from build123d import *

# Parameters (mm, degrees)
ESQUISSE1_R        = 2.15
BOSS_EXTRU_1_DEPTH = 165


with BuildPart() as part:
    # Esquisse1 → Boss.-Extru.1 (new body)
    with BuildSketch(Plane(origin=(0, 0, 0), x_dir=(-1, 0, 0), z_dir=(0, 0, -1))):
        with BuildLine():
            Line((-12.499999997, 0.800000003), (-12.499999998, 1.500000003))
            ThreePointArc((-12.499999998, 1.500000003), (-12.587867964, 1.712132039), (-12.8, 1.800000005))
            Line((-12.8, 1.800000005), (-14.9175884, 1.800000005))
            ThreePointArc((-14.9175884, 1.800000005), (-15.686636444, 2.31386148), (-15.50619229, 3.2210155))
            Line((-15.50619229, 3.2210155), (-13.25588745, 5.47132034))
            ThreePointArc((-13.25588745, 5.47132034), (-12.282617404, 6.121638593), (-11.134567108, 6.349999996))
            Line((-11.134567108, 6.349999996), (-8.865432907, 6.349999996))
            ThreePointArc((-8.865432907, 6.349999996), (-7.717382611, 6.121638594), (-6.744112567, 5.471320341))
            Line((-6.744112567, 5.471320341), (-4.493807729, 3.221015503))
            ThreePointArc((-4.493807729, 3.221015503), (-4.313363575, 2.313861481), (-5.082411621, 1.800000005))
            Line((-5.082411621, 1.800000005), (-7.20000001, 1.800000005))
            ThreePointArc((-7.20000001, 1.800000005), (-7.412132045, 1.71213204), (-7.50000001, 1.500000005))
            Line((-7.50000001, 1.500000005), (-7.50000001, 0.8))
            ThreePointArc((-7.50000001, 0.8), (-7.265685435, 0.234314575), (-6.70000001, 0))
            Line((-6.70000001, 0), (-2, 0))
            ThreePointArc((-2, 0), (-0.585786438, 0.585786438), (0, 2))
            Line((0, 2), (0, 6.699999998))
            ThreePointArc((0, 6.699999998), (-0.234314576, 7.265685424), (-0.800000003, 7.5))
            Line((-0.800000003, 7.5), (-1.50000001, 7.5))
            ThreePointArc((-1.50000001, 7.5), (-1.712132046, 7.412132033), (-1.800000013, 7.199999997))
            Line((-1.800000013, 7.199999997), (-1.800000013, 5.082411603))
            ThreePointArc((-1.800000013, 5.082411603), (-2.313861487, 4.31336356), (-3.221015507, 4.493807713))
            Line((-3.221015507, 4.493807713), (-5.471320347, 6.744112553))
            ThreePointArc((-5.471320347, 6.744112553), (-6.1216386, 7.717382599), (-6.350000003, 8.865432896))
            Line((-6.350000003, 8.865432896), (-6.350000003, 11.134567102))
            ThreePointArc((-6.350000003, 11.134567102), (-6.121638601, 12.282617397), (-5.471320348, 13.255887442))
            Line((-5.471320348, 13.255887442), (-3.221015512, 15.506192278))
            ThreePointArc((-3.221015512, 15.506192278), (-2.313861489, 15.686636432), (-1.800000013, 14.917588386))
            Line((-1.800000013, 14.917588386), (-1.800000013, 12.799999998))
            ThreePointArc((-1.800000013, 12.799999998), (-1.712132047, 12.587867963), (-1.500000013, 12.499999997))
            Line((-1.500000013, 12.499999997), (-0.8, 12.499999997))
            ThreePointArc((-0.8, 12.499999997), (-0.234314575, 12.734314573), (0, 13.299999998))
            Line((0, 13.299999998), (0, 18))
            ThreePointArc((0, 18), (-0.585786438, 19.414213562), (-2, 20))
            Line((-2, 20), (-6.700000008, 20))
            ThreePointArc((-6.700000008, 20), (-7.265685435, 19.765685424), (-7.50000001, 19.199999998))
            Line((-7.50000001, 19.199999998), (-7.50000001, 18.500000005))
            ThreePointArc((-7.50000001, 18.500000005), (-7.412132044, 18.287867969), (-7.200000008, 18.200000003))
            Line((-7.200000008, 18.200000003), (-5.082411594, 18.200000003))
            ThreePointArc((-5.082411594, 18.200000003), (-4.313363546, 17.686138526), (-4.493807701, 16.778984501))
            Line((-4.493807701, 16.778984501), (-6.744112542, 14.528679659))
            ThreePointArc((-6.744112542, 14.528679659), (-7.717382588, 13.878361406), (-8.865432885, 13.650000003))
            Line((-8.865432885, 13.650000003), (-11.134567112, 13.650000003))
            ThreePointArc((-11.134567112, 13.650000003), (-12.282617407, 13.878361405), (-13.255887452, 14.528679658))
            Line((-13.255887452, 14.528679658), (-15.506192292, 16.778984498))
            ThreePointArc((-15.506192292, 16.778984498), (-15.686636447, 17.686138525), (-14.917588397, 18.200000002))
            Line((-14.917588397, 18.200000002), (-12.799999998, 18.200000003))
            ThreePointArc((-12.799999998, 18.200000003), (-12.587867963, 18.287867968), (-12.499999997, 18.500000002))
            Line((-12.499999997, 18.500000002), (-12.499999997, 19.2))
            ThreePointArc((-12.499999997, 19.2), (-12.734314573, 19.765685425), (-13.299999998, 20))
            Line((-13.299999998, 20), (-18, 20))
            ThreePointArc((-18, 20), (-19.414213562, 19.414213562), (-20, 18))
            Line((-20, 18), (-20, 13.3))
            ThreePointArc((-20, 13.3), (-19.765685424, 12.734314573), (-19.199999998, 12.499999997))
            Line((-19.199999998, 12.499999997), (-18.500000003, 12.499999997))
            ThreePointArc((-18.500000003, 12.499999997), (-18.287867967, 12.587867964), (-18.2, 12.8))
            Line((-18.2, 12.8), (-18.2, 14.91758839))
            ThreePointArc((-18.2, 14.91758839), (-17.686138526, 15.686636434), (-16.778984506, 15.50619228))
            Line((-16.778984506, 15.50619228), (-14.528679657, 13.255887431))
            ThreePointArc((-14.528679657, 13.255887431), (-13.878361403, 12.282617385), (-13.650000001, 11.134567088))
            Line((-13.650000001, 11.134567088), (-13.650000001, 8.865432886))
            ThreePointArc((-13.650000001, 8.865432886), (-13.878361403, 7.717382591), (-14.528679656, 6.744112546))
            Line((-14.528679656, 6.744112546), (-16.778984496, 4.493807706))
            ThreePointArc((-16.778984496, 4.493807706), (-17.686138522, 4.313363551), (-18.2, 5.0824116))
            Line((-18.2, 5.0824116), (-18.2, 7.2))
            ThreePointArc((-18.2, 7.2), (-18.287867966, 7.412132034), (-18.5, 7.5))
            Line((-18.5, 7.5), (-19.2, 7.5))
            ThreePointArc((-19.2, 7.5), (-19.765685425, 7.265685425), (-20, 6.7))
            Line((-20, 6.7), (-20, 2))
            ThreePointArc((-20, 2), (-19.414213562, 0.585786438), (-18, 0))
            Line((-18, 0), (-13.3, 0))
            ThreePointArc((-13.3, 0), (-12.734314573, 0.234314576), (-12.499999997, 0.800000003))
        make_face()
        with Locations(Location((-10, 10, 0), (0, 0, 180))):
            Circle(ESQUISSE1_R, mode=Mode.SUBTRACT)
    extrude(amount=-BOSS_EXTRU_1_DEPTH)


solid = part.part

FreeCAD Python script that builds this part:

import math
import FreeCAD as App
import Part
import Sketcher

doc = App.newDocument("Part")
body = doc.addObject("PartDesign::Body", "Body")

# Sketch on XY plane
sketch1 = body.newObject("Sketcher::SketchObject", "Sketch")
sketch1.AttachmentSupport = (doc.getObject("XY_Plane"), [""])
sketch1.MapMode = "FlatFace"
sketch1.addGeometry([
    Part.LineSegment(App.Vector(12.5, 0.8, 0), App.Vector(12.5, 1.5, 0)),  # 0
    Part.ArcOfCircle(Part.Circle(App.Vector(12.8, 1.5, 0), App.Vector(0, 0, 1), 0.3), math.radians(90), math.radians(180)),  # 1
    Part.LineSegment(App.Vector(12.8, 1.8, 0), App.Vector(14.92, 1.8, 0)),  # 2
    Part.ArcOfCircle(Part.Circle(App.Vector(14.92, 2.63, 0), App.Vector(0, 0, 1), 0.83), math.radians(-90), math.radians(45)),  # 3
    Part.LineSegment(App.Vector(15.51, 3.22, 0), App.Vector(13.26, 5.47, 0)),  # 4
    Part.ArcOfCircle(Part.Circle(App.Vector(11.13, 3.35, 0), App.Vector(0, 0, 1), 3), math.radians(45), math.radians(90)),  # 5
    Part.LineSegment(App.Vector(11.13, 6.35, 0), App.Vector(8.87, 6.35, 0)),  # 6
    Part.ArcOfCircle(Part.Circle(App.Vector(8.87, 3.35, 0), App.Vector(0, 0, 1), 3), math.radians(90), math.radians(135)),  # 7
    Part.LineSegment(App.Vector(6.74, 5.47, 0), App.Vector(4.49, 3.22, 0)),  # 8
    Part.ArcOfCircle(Part.Circle(App.Vector(5.08, 2.63, 0), App.Vector(0, 0, 1), 0.83), math.radians(135), math.radians(270)),  # 9
    Part.LineSegment(App.Vector(5.08, 1.8, 0), App.Vector(7.2, 1.8, 0)),  # 10
    Part.ArcOfCircle(Part.Circle(App.Vector(7.2, 1.5, 0), App.Vector(0, 0, 1), 0.3), math.radians(0), math.radians(90)),  # 11
    Part.LineSegment(App.Vector(7.5, 1.5, 0), App.Vector(7.5, 0.8, 0)),  # 12
    Part.ArcOfCircle(Part.Circle(App.Vector(6.7, 0.8, 0), App.Vector(0, 0, 1), 0.8), math.radians(-90), math.radians(0)),  # 13
    Part.LineSegment(App.Vector(6.7, 0, 0), App.Vector(2, 0, 0)),  # 14
    Part.ArcOfCircle(Part.Circle(App.Vector(2, 2, 0), App.Vector(0, 0, 1), 2), math.radians(-180), math.radians(-90)),  # 15
    Part.LineSegment(App.Vector(0, 2, 0), App.Vector(0, 6.7, 0)),  # 16
    Part.ArcOfCircle(Part.Circle(App.Vector(0.8, 6.7, 0), App.Vector(0, 0, 1), 0.8), math.radians(90), math.radians(180)),  # 17
    Part.LineSegment(App.Vector(0.8, 7.5, 0), App.Vector(1.5, 7.5, 0)),  # 18
    Part.ArcOfCircle(Part.Circle(App.Vector(1.5, 7.2, 0), App.Vector(0, 0, 1), 0.3), math.radians(0), math.radians(90)),  # 19
    Part.LineSegment(App.Vector(1.8, 7.2, 0), App.Vector(1.8, 5.08, 0)),  # 20
    Part.ArcOfCircle(Part.Circle(App.Vector(2.63, 5.08, 0), App.Vector(0, 0, 1), 0.83), math.radians(-180), math.radians(-45)),  # 21
    Part.LineSegment(App.Vector(3.22, 4.49, 0), App.Vector(5.47, 6.74, 0)),  # 22
    Part.ArcOfCircle(Part.Circle(App.Vector(3.35, 8.87, 0), App.Vector(0, 0, 1), 3), math.radians(-45), math.radians(0)),  # 23
    Part.LineSegment(App.Vector(6.35, 8.87, 0), App.Vector(6.35, 11.13, 0)),  # 24
    Part.ArcOfCircle(Part.Circle(App.Vector(3.35, 11.13, 0), App.Vector(0, 0, 1), 3), math.radians(0), math.radians(45)),  # 25
    Part.LineSegment(App.Vector(5.47, 13.26, 0), App.Vector(3.22, 15.51, 0)),  # 26
    Part.ArcOfCircle(Part.Circle(App.Vector(2.63, 14.92, 0), App.Vector(0, 0, 1), 0.83), math.radians(45), math.radians(180)),  # 27
    Part.LineSegment(App.Vector(1.8, 14.92, 0), App.Vector(1.8, 12.8, 0)),  # 28
    Part.ArcOfCircle(Part.Circle(App.Vector(1.5, 12.8, 0), App.Vector(0, 0, 1), 0.3), math.radians(-90), math.radians(0)),  # 29
    Part.LineSegment(App.Vector(1.5, 12.5, 0), App.Vector(0.8, 12.5, 0)),  # 30
    Part.ArcOfCircle(Part.Circle(App.Vector(0.8, 13.3, 0), App.Vector(0, 0, 1), 0.8), math.radians(-180), math.radians(-90)),  # 31
    Part.LineSegment(App.Vector(0, 13.3, 0), App.Vector(0, 18, 0)),  # 32
    Part.ArcOfCircle(Part.Circle(App.Vector(2, 18, 0), App.Vector(0, 0, 1), 2), math.radians(90), math.radians(180)),  # 33
    Part.LineSegment(App.Vector(2, 20, 0), App.Vector(6.7, 20, 0)),  # 34
    Part.ArcOfCircle(Part.Circle(App.Vector(6.7, 19.2, 0), App.Vector(0, 0, 1), 0.8), math.radians(0), math.radians(90)),  # 35
    Part.LineSegment(App.Vector(7.5, 19.2, 0), App.Vector(7.5, 18.5, 0)),  # 36
    Part.ArcOfCircle(Part.Circle(App.Vector(7.2, 18.5, 0), App.Vector(0, 0, 1), 0.3), math.radians(-90), math.radians(0)),  # 37
    Part.LineSegment(App.Vector(7.2, 18.2, 0), App.Vector(5.08, 18.2, 0)),  # 38
    Part.ArcOfCircle(Part.Circle(App.Vector(5.08, 17.37, 0), App.Vector(0, 0, 1), 0.83), math.radians(90), math.radians(225)),  # 39
    Part.LineSegment(App.Vector(4.49, 16.78, 0), App.Vector(6.74, 14.53, 0)),  # 40
    Part.ArcOfCircle(Part.Circle(App.Vector(8.87, 16.65, 0), App.Vector(0, 0, 1), 3), math.radians(-135), math.radians(-90)),  # 41
    Part.LineSegment(App.Vector(8.87, 13.65, 0), App.Vector(11.13, 13.65, 0)),  # 42
    Part.ArcOfCircle(Part.Circle(App.Vector(11.13, 16.65, 0), App.Vector(0, 0, 1), 3), math.radians(-90), math.radians(-45)),  # 43
    Part.LineSegment(App.Vector(13.26, 14.53, 0), App.Vector(15.51, 16.78, 0)),  # 44
    Part.ArcOfCircle(Part.Circle(App.Vector(14.92, 17.37, 0), App.Vector(0, 0, 1), 0.83), math.radians(-45), math.radians(90)),  # 45
    Part.LineSegment(App.Vector(14.92, 18.2, 0), App.Vector(12.8, 18.2, 0)),  # 46
    Part.ArcOfCircle(Part.Circle(App.Vector(12.8, 18.5, 0), App.Vector(0, 0, 1), 0.3), math.radians(-180), math.radians(-90)),  # 47
    Part.LineSegment(App.Vector(12.5, 18.5, 0), App.Vector(12.5, 19.2, 0)),  # 48
    Part.ArcOfCircle(Part.Circle(App.Vector(13.3, 19.2, 0), App.Vector(0, 0, 1), 0.8), math.radians(90), math.radians(180)),  # 49
    Part.LineSegment(App.Vector(13.3, 20, 0), App.Vector(18, 20, 0)),  # 50
    Part.ArcOfCircle(Part.Circle(App.Vector(18, 18, 0), App.Vector(0, 0, 1), 2), math.radians(0), math.radians(90)),  # 51
    Part.LineSegment(App.Vector(20, 18, 0), App.Vector(20, 13.3, 0)),  # 52
    Part.ArcOfCircle(Part.Circle(App.Vector(19.2, 13.3, 0), App.Vector(0, 0, 1), 0.8), math.radians(-90), math.radians(0)),  # 53
    Part.LineSegment(App.Vector(19.2, 12.5, 0), App.Vector(18.5, 12.5, 0)),  # 54
    Part.ArcOfCircle(Part.Circle(App.Vector(18.5, 12.8, 0), App.Vector(0, 0, 1), 0.3), math.radians(-180), math.radians(-90)),  # 55
    Part.LineSegment(App.Vector(18.2, 12.8, 0), App.Vector(18.2, 14.92, 0)),  # 56
    Part.ArcOfCircle(Part.Circle(App.Vector(17.37, 14.92, 0), App.Vector(0, 0, 1), 0.83), math.radians(0), math.radians(135)),  # 57
    Part.LineSegment(App.Vector(16.78, 15.51, 0), App.Vector(14.53, 13.26, 0)),  # 58
    Part.ArcOfCircle(Part.Circle(App.Vector(16.65, 11.13, 0), App.Vector(0, 0, 1), 3), math.radians(135), math.radians(180)),  # 59
    Part.LineSegment(App.Vector(13.65, 11.13, 0), App.Vector(13.65, 8.87, 0)),  # 60
    Part.ArcOfCircle(Part.Circle(App.Vector(16.65, 8.87, 0), App.Vector(0, 0, 1), 3), math.radians(180), math.radians(225)),  # 61
    Part.LineSegment(App.Vector(14.53, 6.74, 0), App.Vector(16.78, 4.49, 0)),  # 62
    Part.ArcOfCircle(Part.Circle(App.Vector(17.37, 5.08, 0), App.Vector(0, 0, 1), 0.83), math.radians(-135), math.radians(0)),  # 63
    Part.LineSegment(App.Vector(18.2, 5.08, 0), App.Vector(18.2, 7.2, 0)),  # 64
    Part.ArcOfCircle(Part.Circle(App.Vector(18.5, 7.2, 0), App.Vector(0, 0, 1), 0.3), math.radians(90), math.radians(180)),  # 65
    Part.LineSegment(App.Vector(18.5, 7.5, 0), App.Vector(19.2, 7.5, 0)),  # 66
    Part.ArcOfCircle(Part.Circle(App.Vector(19.2, 6.7, 0), App.Vector(0, 0, 1), 0.8), math.radians(0), math.radians(90)),  # 67
    Part.LineSegment(App.Vector(20, 6.7, 0), App.Vector(20, 2, 0)),  # 68
    Part.ArcOfCircle(Part.Circle(App.Vector(18, 2, 0), App.Vector(0, 0, 1), 2), math.radians(-90), math.radians(0)),  # 69
    Part.LineSegment(App.Vector(18, 0, 0), App.Vector(13.3, 0, 0)),  # 70
    Part.ArcOfCircle(Part.Circle(App.Vector(13.3, 0.8, 0), App.Vector(0, 0, 1), 0.8), math.radians(180), math.radians(270)),  # 71
    Part.Circle(App.Vector(10, 10, 0), App.Vector(0, 0, 1), 2.15),  # 72
], False)
sketch1.addConstraint([
    Sketcher.Constraint("Tangent", 0, 2, 1, 2),
    Sketcher.Constraint("Tangent", 1, 1, 2, 1),
    Sketcher.Constraint("Tangent", 2, 2, 3, 1),
    Sketcher.Constraint("Tangent", 3, 2, 4, 1),
    Sketcher.Constraint("Tangent", 4, 2, 5, 1),
    Sketcher.Constraint("Tangent", 5, 2, 6, 1),
    Sketcher.Constraint("Tangent", 6, 2, 7, 1),
    Sketcher.Constraint("Tangent", 7, 2, 8, 1),
    Sketcher.Constraint("Tangent", 8, 2, 9, 1),
    Sketcher.Constraint("Tangent", 9, 2, 10, 1),
    Sketcher.Constraint("Tangent", 10, 2, 11, 2),
    Sketcher.Constraint("Tangent", 11, 1, 12, 1),
    Sketcher.Constraint("Tangent", 12, 2, 13, 2),
    Sketcher.Constraint("Tangent", 13, 1, 14, 1),
    Sketcher.Constraint("Tangent", 14, 2, 15, 2),
    Sketcher.Constraint("Tangent", 15, 1, 16, 1),
    Sketcher.Constraint("Tangent", 16, 2, 17, 2),
    Sketcher.Constraint("Tangent", 17, 1, 18, 1),
    Sketcher.Constraint("Tangent", 18, 2, 19, 2),
    Sketcher.Constraint("Tangent", 19, 1, 20, 1),
    Sketcher.Constraint("Tangent", 20, 2, 21, 1),
    Sketcher.Constraint("Tangent", 21, 2, 22, 1),
    Sketcher.Constraint("Tangent", 22, 2, 23, 1),
    Sketcher.Constraint("Tangent", 23, 2, 24, 1),
    Sketcher.Constraint("Tangent", 24, 2, 25, 1),
    Sketcher.Constraint("Tangent", 25, 2, 26, 1),
    Sketcher.Constraint("Tangent", 26, 2, 27, 1),
    Sketcher.Constraint("Tangent", 27, 2, 28, 1),
    Sketcher.Constraint("Tangent", 28, 2, 29, 2),
    Sketcher.Constraint("Tangent", 29, 1, 30, 1),
    Sketcher.Constraint("Tangent", 30, 2, 31, 2),
    Sketcher.Constraint("Tangent", 31, 1, 32, 1),
    Sketcher.Constraint("Tangent", 32, 2, 33, 2),
    Sketcher.Constraint("Tangent", 33, 1, 34, 1),
    Sketcher.Constraint("Tangent", 34, 2, 35, 2),
    Sketcher.Constraint("Tangent", 35, 1, 36, 1),
    Sketcher.Constraint("Tangent", 36, 2, 37, 2),
    Sketcher.Constraint("Tangent", 37, 1, 38, 1),
    Sketcher.Constraint("Tangent", 38, 2, 39, 1),
    Sketcher.Constraint("Tangent", 39, 2, 40, 1),
    Sketcher.Constraint("Tangent", 40, 2, 41, 1),
    Sketcher.Constraint("Tangent", 41, 2, 42, 1),
    Sketcher.Constraint("Tangent", 42, 2, 43, 1),
    Sketcher.Constraint("Tangent", 43, 2, 44, 1),
    Sketcher.Constraint("Tangent", 44, 2, 45, 1),
    Sketcher.Constraint("Tangent", 45, 2, 46, 1),
    Sketcher.Constraint("Tangent", 46, 2, 47, 2),
    Sketcher.Constraint("Tangent", 47, 1, 48, 1),
    Sketcher.Constraint("Tangent", 48, 2, 49, 2),
    Sketcher.Constraint("Tangent", 49, 1, 50, 1),
    Sketcher.Constraint("Tangent", 50, 2, 51, 2),
    Sketcher.Constraint("Tangent", 51, 1, 52, 1),
    Sketcher.Constraint("Tangent", 52, 2, 53, 2),
    Sketcher.Constraint("Tangent", 53, 1, 54, 1),
    Sketcher.Constraint("Tangent", 54, 2, 55, 2),
    Sketcher.Constraint("Tangent", 55, 1, 56, 1),
    Sketcher.Constraint("Tangent", 56, 2, 57, 1),
    Sketcher.Constraint("Tangent", 57, 2, 58, 1),
    Sketcher.Constraint("Tangent", 58, 2, 59, 1),
    Sketcher.Constraint("Tangent", 59, 2, 60, 1),
    Sketcher.Constraint("Tangent", 60, 2, 61, 1),
    Sketcher.Constraint("Tangent", 61, 2, 62, 1),
    Sketcher.Constraint("Tangent", 62, 2, 63, 1),
    Sketcher.Constraint("Tangent", 63, 2, 64, 1),
    Sketcher.Constraint("Tangent", 64, 2, 65, 2),
    Sketcher.Constraint("Tangent", 65, 1, 66, 1),
    Sketcher.Constraint("Tangent", 66, 2, 67, 2),
    Sketcher.Constraint("Tangent", 67, 1, 68, 1),
    Sketcher.Constraint("Tangent", 68, 2, 69, 2),
    Sketcher.Constraint("Tangent", 69, 1, 70, 1),
    Sketcher.Constraint("Tangent", 70, 2, 71, 2),
    Sketcher.Constraint("Tangent", 71, 1, 0, 1),
    Sketcher.Constraint("Vertical", 0),
    Sketcher.Constraint("Horizontal", 2),
    Sketcher.Constraint("Horizontal", 6),
    Sketcher.Constraint("Horizontal", 10),
    Sketcher.Constraint("Vertical", 12),
    Sketcher.Constraint("Horizontal", 14),
    Sketcher.Constraint("Vertical", 16),
    Sketcher.Constraint("Horizontal", 18),
    Sketcher.Constraint("Vertical", 20),
    Sketcher.Constraint("Vertical", 24),
    Sketcher.Constraint("Vertical", 28),
    Sketcher.Constraint("Horizontal", 30),
    Sketcher.Constraint("Vertical", 32),
    Sketcher.Constraint("Horizontal", 34),
    Sketcher.Constraint("Vertical", 36),
    Sketcher.Constraint("Horizontal", 38),
    Sketcher.Constraint("Horizontal", 42),
    Sketcher.Constraint("Horizontal", 46),
    Sketcher.Constraint("Vertical", 48),
    Sketcher.Constraint("Horizontal", 50),
    Sketcher.Constraint("Vertical", 52),
    Sketcher.Constraint("Horizontal", 54),
    Sketcher.Constraint("Vertical", 56),
    Sketcher.Constraint("Vertical", 60),
    Sketcher.Constraint("Vertical", 64),
    Sketcher.Constraint("Horizontal", 66),
    Sketcher.Constraint("Vertical", 68),
    Sketcher.Constraint("Horizontal", 70),
    Sketcher.Constraint("Equal", 5, 7),
    Sketcher.Constraint("Equal", 3, 9),
    Sketcher.Constraint("Equal", 1, 11),
    Sketcher.Constraint("Equal", 13, 17),
    Sketcher.Constraint("Equal", 11, 19),
    Sketcher.Constraint("Equal", 9, 21),
    Sketcher.Constraint("Equal", 7, 23),
    Sketcher.Constraint("Equal", 23, 25),
    Sketcher.Constraint("Equal", 21, 27),
    Sketcher.Constraint("Equal", 19, 29),
    Sketcher.Constraint("Equal", 17, 31),
    Sketcher.Constraint("Equal", 15, 33),
    Sketcher.Constraint("Equal", 31, 35),
    Sketcher.Constraint("Equal", 29, 37),
    Sketcher.Constraint("Equal", 27, 39),
    Sketcher.Constraint("Equal", 25, 41),
    Sketcher.Constraint("Equal", 41, 43),
    Sketcher.Constraint("Equal", 39, 45),
    Sketcher.Constraint("Equal", 37, 47),
    Sketcher.Constraint("Equal", 35, 49),
    Sketcher.Constraint("Equal", 33, 51),
    Sketcher.Constraint("Equal", 49, 53),
    Sketcher.Constraint("Equal", 47, 55),
    Sketcher.Constraint("Equal", 45, 57),
    Sketcher.Constraint("Equal", 43, 59),
    Sketcher.Constraint("Equal", 59, 61),
    Sketcher.Constraint("Equal", 57, 63),
    Sketcher.Constraint("Equal", 55, 65),
    Sketcher.Constraint("Equal", 53, 67),
    Sketcher.Constraint("Equal", 51, 69),
    Sketcher.Constraint("Equal", 67, 71),
    Sketcher.Constraint("PointOnObject", 13, 1, -1),
    Sketcher.Constraint("PointOnObject", 15, 1, -2),
    Sketcher.Constraint("PointOnObject", 31, 1, -2),
    Sketcher.Constraint("PointOnObject", 69, 1, -1),
    Sketcher.Constraint("Perpendicular", 4, 8),
    Sketcher.Constraint("Parallel", 8, 22),
    Sketcher.Constraint("Perpendicular", 22, 26),
    Sketcher.Constraint("Parallel", 26, 40),
    Sketcher.Constraint("Perpendicular", 40, 44),
    Sketcher.Constraint("Parallel", 44, 58),
    Sketcher.Constraint("Perpendicular", 58, 62),
    Sketcher.Constraint("Horizontal", 3, 3, 9, 3),
    Sketcher.Constraint("Horizontal", 39, 3, 45, 3),
    Sketcher.Constraint("Horizontal", 35, 3, 49, 3),
    Sketcher.Constraint("Horizontal", 31, 3, 53, 3),
    Sketcher.Constraint("Horizontal", 27, 3, 57, 3),
    Sketcher.Constraint("Horizontal", 25, 3, 59, 3),
    Sketcher.Constraint("Horizontal", 23, 3, 61, 3),
    Sketcher.Constraint("Horizontal", 21, 3, 63, 3),
    Sketcher.Constraint("Horizontal", 19, 3, 65, 3),
    Sketcher.Constraint("Horizontal", 4, 2, 7, 2),
    Sketcher.Constraint("Vertical", 21, 3, 27, 3),
    Sketcher.Constraint("Vertical", 13, 3, 35, 3),
    Sketcher.Constraint("Vertical", 9, 3, 39, 3),
    Sketcher.Constraint("Vertical", 7, 3, 41, 3),
    Sketcher.Constraint("Vertical", 5, 3, 43, 3),
    Sketcher.Constraint("Vertical", 1, 3, 47, 3),
    Sketcher.Constraint("Vertical", 53, 3, 67, 3),
    Sketcher.Constraint("Equal", 2, 10),
    Sketcher.Constraint("Equal", 34, 50),
    Sketcher.Constraint("Equal", 30, 54),
    Sketcher.Constraint("Equal", 66, 0),
    Sketcher.Constraint("Equal", 70, 16),
    Sketcher.Constraint("Equal", 46, 20),
    Sketcher.Constraint("Equal", 42, 24),
    Sketcher.Constraint("Equal", 20, 28),
    Sketcher.Constraint("Equal", 16, 32),
    Sketcher.Constraint("Equal", 12, 36),
    Sketcher.Constraint("Equal", 8, 22),
    Sketcher.Constraint("Radius", 5, 3.0),
    Sketcher.Constraint("Radius", 15, 2.0),
    Sketcher.Constraint("Diameter", 72, 4.3),
    Sketcher.Constraint("Radius", 1, 0.3),
    Sketcher.Constraint("Radius", 13, 0.8),
    Sketcher.Constraint("DistanceX", 14, 2, 14, 1, 4.7),
    Sketcher.Constraint("DistanceX", 18, 1, 18, 2, 0.7),
    Sketcher.Constraint("DistanceY", -1, 1, 33, 3, 18.0),
    Sketcher.Constraint("DistanceX", -1, 1, 72, 3, 10.0),
    Sketcher.Constraint("DistanceY", -1, 1, 72, 3, 10.0),
    Sketcher.Constraint("DistanceY", -1, 1, 5, 3, 3.35),
    Sketcher.Constraint("Radius", 3, 0.832412),
    Sketcher.Constraint("DistanceX", 2, 1, 2, 2, 2.117588),
])
pad1 = body.newObject("PartDesign::Pad", "Pad")
pad1.Profile = sketch1
pad1.Length = 165

doc.recompute()
